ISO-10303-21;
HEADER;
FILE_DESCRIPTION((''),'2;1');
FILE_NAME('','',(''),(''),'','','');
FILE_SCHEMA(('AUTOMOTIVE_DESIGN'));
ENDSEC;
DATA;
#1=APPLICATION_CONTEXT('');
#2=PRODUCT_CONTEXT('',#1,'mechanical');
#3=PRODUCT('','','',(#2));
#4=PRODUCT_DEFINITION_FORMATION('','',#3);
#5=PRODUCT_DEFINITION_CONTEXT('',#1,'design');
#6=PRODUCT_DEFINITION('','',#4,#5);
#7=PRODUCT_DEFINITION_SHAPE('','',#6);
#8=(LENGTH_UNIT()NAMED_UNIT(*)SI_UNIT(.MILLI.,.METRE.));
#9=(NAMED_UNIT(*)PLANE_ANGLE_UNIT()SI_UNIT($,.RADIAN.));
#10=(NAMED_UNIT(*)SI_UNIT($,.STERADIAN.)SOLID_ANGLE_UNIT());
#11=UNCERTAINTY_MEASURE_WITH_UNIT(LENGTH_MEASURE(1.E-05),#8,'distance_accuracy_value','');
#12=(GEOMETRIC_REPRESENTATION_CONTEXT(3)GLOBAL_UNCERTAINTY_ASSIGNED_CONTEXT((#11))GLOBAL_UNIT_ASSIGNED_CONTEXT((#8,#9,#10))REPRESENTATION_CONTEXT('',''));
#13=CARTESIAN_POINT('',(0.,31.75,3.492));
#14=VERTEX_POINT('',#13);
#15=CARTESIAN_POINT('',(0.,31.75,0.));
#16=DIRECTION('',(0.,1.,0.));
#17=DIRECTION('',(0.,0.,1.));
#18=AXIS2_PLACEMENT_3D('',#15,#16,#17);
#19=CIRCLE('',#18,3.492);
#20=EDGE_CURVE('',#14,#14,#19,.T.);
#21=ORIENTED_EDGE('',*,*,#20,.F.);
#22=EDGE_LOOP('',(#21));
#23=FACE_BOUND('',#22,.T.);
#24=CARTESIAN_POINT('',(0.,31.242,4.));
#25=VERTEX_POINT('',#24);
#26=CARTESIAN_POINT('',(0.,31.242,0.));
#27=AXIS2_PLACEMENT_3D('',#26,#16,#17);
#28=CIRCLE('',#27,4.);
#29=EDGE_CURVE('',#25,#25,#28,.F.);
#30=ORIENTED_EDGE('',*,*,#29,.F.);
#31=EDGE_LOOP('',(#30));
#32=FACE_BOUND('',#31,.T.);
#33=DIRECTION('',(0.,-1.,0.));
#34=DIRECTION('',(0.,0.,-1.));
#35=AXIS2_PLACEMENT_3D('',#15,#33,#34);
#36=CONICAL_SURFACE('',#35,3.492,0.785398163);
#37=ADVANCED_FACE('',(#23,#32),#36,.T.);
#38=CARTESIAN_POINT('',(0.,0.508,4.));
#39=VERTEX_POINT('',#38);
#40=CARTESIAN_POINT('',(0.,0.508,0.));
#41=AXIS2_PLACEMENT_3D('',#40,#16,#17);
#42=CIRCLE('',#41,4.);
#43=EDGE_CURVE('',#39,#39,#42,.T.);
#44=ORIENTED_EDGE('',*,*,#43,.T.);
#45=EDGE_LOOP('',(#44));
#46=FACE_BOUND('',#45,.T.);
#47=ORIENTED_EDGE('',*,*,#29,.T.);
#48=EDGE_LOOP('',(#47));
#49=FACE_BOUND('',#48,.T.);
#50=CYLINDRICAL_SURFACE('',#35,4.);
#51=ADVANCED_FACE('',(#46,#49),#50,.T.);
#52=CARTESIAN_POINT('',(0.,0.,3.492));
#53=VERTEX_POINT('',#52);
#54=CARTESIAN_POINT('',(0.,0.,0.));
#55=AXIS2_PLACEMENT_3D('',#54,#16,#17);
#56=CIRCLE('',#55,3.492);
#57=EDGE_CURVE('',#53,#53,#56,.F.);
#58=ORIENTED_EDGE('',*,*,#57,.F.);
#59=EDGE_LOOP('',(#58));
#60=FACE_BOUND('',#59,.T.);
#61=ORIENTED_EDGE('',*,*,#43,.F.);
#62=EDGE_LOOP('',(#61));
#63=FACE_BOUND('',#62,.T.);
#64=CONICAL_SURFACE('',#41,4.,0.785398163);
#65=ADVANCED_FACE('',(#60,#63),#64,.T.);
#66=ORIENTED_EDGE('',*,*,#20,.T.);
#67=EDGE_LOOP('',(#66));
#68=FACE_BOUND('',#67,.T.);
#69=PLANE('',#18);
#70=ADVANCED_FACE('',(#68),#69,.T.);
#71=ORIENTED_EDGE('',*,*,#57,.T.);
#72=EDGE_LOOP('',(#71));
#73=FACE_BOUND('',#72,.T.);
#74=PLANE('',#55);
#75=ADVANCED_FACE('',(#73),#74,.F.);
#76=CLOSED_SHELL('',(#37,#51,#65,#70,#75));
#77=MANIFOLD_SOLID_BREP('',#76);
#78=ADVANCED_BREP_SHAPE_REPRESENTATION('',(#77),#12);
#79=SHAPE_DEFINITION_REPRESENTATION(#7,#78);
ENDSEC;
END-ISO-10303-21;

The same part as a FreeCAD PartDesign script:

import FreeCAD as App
import Part
import Sketcher
from FreeCAD import Vector
Q = App.Units.Quantity


def edges_at(feature, points):
    """Names of the edges that pass closest to the given points."""
    edges = feature.Shape.Edges
    near = lambda p: min(range(len(edges)), key=lambda i: edges[i].distToShape(Part.Vertex(*p))[0])
    return sorted({f"Edge{near(p) + 1}" for p in points})

doc = App.newDocument("Part")
body = doc.addObject("PartDesign::Body", "Body")

sketch1 = body.newObject("Sketcher::SketchObject", "Sketch")
sketch1.AttachmentSupport = (doc.getObject("XZ_Plane"), [""])
sketch1.MapMode = "FlatFace"
sketch1.addGeometry(Part.Circle(Vector(0, 0, 0), Vector(0, 0, 1), 4), False)
sketch1.addConstraint([
    Sketcher.Constraint("Coincident", 0, 3, -1, 1),
    Sketcher.Constraint("Diameter", 0, 8.0),
])
pad1 = body.newObject("PartDesign::Pad", "Pad")
pad1.Profile = sketch1
pad1.Length = Q("1.25 in")
pad1.Reversed = True
doc.recompute()

chamfer = body.newObject("PartDesign::Chamfer", "Chamfer")
chamfer.Base = (pad1, edges_at(pad1, [(-4, 0, 0), (-4, 31.75, 0)]))
chamfer.Size = Q("0.02 in")

doc.recompute()
